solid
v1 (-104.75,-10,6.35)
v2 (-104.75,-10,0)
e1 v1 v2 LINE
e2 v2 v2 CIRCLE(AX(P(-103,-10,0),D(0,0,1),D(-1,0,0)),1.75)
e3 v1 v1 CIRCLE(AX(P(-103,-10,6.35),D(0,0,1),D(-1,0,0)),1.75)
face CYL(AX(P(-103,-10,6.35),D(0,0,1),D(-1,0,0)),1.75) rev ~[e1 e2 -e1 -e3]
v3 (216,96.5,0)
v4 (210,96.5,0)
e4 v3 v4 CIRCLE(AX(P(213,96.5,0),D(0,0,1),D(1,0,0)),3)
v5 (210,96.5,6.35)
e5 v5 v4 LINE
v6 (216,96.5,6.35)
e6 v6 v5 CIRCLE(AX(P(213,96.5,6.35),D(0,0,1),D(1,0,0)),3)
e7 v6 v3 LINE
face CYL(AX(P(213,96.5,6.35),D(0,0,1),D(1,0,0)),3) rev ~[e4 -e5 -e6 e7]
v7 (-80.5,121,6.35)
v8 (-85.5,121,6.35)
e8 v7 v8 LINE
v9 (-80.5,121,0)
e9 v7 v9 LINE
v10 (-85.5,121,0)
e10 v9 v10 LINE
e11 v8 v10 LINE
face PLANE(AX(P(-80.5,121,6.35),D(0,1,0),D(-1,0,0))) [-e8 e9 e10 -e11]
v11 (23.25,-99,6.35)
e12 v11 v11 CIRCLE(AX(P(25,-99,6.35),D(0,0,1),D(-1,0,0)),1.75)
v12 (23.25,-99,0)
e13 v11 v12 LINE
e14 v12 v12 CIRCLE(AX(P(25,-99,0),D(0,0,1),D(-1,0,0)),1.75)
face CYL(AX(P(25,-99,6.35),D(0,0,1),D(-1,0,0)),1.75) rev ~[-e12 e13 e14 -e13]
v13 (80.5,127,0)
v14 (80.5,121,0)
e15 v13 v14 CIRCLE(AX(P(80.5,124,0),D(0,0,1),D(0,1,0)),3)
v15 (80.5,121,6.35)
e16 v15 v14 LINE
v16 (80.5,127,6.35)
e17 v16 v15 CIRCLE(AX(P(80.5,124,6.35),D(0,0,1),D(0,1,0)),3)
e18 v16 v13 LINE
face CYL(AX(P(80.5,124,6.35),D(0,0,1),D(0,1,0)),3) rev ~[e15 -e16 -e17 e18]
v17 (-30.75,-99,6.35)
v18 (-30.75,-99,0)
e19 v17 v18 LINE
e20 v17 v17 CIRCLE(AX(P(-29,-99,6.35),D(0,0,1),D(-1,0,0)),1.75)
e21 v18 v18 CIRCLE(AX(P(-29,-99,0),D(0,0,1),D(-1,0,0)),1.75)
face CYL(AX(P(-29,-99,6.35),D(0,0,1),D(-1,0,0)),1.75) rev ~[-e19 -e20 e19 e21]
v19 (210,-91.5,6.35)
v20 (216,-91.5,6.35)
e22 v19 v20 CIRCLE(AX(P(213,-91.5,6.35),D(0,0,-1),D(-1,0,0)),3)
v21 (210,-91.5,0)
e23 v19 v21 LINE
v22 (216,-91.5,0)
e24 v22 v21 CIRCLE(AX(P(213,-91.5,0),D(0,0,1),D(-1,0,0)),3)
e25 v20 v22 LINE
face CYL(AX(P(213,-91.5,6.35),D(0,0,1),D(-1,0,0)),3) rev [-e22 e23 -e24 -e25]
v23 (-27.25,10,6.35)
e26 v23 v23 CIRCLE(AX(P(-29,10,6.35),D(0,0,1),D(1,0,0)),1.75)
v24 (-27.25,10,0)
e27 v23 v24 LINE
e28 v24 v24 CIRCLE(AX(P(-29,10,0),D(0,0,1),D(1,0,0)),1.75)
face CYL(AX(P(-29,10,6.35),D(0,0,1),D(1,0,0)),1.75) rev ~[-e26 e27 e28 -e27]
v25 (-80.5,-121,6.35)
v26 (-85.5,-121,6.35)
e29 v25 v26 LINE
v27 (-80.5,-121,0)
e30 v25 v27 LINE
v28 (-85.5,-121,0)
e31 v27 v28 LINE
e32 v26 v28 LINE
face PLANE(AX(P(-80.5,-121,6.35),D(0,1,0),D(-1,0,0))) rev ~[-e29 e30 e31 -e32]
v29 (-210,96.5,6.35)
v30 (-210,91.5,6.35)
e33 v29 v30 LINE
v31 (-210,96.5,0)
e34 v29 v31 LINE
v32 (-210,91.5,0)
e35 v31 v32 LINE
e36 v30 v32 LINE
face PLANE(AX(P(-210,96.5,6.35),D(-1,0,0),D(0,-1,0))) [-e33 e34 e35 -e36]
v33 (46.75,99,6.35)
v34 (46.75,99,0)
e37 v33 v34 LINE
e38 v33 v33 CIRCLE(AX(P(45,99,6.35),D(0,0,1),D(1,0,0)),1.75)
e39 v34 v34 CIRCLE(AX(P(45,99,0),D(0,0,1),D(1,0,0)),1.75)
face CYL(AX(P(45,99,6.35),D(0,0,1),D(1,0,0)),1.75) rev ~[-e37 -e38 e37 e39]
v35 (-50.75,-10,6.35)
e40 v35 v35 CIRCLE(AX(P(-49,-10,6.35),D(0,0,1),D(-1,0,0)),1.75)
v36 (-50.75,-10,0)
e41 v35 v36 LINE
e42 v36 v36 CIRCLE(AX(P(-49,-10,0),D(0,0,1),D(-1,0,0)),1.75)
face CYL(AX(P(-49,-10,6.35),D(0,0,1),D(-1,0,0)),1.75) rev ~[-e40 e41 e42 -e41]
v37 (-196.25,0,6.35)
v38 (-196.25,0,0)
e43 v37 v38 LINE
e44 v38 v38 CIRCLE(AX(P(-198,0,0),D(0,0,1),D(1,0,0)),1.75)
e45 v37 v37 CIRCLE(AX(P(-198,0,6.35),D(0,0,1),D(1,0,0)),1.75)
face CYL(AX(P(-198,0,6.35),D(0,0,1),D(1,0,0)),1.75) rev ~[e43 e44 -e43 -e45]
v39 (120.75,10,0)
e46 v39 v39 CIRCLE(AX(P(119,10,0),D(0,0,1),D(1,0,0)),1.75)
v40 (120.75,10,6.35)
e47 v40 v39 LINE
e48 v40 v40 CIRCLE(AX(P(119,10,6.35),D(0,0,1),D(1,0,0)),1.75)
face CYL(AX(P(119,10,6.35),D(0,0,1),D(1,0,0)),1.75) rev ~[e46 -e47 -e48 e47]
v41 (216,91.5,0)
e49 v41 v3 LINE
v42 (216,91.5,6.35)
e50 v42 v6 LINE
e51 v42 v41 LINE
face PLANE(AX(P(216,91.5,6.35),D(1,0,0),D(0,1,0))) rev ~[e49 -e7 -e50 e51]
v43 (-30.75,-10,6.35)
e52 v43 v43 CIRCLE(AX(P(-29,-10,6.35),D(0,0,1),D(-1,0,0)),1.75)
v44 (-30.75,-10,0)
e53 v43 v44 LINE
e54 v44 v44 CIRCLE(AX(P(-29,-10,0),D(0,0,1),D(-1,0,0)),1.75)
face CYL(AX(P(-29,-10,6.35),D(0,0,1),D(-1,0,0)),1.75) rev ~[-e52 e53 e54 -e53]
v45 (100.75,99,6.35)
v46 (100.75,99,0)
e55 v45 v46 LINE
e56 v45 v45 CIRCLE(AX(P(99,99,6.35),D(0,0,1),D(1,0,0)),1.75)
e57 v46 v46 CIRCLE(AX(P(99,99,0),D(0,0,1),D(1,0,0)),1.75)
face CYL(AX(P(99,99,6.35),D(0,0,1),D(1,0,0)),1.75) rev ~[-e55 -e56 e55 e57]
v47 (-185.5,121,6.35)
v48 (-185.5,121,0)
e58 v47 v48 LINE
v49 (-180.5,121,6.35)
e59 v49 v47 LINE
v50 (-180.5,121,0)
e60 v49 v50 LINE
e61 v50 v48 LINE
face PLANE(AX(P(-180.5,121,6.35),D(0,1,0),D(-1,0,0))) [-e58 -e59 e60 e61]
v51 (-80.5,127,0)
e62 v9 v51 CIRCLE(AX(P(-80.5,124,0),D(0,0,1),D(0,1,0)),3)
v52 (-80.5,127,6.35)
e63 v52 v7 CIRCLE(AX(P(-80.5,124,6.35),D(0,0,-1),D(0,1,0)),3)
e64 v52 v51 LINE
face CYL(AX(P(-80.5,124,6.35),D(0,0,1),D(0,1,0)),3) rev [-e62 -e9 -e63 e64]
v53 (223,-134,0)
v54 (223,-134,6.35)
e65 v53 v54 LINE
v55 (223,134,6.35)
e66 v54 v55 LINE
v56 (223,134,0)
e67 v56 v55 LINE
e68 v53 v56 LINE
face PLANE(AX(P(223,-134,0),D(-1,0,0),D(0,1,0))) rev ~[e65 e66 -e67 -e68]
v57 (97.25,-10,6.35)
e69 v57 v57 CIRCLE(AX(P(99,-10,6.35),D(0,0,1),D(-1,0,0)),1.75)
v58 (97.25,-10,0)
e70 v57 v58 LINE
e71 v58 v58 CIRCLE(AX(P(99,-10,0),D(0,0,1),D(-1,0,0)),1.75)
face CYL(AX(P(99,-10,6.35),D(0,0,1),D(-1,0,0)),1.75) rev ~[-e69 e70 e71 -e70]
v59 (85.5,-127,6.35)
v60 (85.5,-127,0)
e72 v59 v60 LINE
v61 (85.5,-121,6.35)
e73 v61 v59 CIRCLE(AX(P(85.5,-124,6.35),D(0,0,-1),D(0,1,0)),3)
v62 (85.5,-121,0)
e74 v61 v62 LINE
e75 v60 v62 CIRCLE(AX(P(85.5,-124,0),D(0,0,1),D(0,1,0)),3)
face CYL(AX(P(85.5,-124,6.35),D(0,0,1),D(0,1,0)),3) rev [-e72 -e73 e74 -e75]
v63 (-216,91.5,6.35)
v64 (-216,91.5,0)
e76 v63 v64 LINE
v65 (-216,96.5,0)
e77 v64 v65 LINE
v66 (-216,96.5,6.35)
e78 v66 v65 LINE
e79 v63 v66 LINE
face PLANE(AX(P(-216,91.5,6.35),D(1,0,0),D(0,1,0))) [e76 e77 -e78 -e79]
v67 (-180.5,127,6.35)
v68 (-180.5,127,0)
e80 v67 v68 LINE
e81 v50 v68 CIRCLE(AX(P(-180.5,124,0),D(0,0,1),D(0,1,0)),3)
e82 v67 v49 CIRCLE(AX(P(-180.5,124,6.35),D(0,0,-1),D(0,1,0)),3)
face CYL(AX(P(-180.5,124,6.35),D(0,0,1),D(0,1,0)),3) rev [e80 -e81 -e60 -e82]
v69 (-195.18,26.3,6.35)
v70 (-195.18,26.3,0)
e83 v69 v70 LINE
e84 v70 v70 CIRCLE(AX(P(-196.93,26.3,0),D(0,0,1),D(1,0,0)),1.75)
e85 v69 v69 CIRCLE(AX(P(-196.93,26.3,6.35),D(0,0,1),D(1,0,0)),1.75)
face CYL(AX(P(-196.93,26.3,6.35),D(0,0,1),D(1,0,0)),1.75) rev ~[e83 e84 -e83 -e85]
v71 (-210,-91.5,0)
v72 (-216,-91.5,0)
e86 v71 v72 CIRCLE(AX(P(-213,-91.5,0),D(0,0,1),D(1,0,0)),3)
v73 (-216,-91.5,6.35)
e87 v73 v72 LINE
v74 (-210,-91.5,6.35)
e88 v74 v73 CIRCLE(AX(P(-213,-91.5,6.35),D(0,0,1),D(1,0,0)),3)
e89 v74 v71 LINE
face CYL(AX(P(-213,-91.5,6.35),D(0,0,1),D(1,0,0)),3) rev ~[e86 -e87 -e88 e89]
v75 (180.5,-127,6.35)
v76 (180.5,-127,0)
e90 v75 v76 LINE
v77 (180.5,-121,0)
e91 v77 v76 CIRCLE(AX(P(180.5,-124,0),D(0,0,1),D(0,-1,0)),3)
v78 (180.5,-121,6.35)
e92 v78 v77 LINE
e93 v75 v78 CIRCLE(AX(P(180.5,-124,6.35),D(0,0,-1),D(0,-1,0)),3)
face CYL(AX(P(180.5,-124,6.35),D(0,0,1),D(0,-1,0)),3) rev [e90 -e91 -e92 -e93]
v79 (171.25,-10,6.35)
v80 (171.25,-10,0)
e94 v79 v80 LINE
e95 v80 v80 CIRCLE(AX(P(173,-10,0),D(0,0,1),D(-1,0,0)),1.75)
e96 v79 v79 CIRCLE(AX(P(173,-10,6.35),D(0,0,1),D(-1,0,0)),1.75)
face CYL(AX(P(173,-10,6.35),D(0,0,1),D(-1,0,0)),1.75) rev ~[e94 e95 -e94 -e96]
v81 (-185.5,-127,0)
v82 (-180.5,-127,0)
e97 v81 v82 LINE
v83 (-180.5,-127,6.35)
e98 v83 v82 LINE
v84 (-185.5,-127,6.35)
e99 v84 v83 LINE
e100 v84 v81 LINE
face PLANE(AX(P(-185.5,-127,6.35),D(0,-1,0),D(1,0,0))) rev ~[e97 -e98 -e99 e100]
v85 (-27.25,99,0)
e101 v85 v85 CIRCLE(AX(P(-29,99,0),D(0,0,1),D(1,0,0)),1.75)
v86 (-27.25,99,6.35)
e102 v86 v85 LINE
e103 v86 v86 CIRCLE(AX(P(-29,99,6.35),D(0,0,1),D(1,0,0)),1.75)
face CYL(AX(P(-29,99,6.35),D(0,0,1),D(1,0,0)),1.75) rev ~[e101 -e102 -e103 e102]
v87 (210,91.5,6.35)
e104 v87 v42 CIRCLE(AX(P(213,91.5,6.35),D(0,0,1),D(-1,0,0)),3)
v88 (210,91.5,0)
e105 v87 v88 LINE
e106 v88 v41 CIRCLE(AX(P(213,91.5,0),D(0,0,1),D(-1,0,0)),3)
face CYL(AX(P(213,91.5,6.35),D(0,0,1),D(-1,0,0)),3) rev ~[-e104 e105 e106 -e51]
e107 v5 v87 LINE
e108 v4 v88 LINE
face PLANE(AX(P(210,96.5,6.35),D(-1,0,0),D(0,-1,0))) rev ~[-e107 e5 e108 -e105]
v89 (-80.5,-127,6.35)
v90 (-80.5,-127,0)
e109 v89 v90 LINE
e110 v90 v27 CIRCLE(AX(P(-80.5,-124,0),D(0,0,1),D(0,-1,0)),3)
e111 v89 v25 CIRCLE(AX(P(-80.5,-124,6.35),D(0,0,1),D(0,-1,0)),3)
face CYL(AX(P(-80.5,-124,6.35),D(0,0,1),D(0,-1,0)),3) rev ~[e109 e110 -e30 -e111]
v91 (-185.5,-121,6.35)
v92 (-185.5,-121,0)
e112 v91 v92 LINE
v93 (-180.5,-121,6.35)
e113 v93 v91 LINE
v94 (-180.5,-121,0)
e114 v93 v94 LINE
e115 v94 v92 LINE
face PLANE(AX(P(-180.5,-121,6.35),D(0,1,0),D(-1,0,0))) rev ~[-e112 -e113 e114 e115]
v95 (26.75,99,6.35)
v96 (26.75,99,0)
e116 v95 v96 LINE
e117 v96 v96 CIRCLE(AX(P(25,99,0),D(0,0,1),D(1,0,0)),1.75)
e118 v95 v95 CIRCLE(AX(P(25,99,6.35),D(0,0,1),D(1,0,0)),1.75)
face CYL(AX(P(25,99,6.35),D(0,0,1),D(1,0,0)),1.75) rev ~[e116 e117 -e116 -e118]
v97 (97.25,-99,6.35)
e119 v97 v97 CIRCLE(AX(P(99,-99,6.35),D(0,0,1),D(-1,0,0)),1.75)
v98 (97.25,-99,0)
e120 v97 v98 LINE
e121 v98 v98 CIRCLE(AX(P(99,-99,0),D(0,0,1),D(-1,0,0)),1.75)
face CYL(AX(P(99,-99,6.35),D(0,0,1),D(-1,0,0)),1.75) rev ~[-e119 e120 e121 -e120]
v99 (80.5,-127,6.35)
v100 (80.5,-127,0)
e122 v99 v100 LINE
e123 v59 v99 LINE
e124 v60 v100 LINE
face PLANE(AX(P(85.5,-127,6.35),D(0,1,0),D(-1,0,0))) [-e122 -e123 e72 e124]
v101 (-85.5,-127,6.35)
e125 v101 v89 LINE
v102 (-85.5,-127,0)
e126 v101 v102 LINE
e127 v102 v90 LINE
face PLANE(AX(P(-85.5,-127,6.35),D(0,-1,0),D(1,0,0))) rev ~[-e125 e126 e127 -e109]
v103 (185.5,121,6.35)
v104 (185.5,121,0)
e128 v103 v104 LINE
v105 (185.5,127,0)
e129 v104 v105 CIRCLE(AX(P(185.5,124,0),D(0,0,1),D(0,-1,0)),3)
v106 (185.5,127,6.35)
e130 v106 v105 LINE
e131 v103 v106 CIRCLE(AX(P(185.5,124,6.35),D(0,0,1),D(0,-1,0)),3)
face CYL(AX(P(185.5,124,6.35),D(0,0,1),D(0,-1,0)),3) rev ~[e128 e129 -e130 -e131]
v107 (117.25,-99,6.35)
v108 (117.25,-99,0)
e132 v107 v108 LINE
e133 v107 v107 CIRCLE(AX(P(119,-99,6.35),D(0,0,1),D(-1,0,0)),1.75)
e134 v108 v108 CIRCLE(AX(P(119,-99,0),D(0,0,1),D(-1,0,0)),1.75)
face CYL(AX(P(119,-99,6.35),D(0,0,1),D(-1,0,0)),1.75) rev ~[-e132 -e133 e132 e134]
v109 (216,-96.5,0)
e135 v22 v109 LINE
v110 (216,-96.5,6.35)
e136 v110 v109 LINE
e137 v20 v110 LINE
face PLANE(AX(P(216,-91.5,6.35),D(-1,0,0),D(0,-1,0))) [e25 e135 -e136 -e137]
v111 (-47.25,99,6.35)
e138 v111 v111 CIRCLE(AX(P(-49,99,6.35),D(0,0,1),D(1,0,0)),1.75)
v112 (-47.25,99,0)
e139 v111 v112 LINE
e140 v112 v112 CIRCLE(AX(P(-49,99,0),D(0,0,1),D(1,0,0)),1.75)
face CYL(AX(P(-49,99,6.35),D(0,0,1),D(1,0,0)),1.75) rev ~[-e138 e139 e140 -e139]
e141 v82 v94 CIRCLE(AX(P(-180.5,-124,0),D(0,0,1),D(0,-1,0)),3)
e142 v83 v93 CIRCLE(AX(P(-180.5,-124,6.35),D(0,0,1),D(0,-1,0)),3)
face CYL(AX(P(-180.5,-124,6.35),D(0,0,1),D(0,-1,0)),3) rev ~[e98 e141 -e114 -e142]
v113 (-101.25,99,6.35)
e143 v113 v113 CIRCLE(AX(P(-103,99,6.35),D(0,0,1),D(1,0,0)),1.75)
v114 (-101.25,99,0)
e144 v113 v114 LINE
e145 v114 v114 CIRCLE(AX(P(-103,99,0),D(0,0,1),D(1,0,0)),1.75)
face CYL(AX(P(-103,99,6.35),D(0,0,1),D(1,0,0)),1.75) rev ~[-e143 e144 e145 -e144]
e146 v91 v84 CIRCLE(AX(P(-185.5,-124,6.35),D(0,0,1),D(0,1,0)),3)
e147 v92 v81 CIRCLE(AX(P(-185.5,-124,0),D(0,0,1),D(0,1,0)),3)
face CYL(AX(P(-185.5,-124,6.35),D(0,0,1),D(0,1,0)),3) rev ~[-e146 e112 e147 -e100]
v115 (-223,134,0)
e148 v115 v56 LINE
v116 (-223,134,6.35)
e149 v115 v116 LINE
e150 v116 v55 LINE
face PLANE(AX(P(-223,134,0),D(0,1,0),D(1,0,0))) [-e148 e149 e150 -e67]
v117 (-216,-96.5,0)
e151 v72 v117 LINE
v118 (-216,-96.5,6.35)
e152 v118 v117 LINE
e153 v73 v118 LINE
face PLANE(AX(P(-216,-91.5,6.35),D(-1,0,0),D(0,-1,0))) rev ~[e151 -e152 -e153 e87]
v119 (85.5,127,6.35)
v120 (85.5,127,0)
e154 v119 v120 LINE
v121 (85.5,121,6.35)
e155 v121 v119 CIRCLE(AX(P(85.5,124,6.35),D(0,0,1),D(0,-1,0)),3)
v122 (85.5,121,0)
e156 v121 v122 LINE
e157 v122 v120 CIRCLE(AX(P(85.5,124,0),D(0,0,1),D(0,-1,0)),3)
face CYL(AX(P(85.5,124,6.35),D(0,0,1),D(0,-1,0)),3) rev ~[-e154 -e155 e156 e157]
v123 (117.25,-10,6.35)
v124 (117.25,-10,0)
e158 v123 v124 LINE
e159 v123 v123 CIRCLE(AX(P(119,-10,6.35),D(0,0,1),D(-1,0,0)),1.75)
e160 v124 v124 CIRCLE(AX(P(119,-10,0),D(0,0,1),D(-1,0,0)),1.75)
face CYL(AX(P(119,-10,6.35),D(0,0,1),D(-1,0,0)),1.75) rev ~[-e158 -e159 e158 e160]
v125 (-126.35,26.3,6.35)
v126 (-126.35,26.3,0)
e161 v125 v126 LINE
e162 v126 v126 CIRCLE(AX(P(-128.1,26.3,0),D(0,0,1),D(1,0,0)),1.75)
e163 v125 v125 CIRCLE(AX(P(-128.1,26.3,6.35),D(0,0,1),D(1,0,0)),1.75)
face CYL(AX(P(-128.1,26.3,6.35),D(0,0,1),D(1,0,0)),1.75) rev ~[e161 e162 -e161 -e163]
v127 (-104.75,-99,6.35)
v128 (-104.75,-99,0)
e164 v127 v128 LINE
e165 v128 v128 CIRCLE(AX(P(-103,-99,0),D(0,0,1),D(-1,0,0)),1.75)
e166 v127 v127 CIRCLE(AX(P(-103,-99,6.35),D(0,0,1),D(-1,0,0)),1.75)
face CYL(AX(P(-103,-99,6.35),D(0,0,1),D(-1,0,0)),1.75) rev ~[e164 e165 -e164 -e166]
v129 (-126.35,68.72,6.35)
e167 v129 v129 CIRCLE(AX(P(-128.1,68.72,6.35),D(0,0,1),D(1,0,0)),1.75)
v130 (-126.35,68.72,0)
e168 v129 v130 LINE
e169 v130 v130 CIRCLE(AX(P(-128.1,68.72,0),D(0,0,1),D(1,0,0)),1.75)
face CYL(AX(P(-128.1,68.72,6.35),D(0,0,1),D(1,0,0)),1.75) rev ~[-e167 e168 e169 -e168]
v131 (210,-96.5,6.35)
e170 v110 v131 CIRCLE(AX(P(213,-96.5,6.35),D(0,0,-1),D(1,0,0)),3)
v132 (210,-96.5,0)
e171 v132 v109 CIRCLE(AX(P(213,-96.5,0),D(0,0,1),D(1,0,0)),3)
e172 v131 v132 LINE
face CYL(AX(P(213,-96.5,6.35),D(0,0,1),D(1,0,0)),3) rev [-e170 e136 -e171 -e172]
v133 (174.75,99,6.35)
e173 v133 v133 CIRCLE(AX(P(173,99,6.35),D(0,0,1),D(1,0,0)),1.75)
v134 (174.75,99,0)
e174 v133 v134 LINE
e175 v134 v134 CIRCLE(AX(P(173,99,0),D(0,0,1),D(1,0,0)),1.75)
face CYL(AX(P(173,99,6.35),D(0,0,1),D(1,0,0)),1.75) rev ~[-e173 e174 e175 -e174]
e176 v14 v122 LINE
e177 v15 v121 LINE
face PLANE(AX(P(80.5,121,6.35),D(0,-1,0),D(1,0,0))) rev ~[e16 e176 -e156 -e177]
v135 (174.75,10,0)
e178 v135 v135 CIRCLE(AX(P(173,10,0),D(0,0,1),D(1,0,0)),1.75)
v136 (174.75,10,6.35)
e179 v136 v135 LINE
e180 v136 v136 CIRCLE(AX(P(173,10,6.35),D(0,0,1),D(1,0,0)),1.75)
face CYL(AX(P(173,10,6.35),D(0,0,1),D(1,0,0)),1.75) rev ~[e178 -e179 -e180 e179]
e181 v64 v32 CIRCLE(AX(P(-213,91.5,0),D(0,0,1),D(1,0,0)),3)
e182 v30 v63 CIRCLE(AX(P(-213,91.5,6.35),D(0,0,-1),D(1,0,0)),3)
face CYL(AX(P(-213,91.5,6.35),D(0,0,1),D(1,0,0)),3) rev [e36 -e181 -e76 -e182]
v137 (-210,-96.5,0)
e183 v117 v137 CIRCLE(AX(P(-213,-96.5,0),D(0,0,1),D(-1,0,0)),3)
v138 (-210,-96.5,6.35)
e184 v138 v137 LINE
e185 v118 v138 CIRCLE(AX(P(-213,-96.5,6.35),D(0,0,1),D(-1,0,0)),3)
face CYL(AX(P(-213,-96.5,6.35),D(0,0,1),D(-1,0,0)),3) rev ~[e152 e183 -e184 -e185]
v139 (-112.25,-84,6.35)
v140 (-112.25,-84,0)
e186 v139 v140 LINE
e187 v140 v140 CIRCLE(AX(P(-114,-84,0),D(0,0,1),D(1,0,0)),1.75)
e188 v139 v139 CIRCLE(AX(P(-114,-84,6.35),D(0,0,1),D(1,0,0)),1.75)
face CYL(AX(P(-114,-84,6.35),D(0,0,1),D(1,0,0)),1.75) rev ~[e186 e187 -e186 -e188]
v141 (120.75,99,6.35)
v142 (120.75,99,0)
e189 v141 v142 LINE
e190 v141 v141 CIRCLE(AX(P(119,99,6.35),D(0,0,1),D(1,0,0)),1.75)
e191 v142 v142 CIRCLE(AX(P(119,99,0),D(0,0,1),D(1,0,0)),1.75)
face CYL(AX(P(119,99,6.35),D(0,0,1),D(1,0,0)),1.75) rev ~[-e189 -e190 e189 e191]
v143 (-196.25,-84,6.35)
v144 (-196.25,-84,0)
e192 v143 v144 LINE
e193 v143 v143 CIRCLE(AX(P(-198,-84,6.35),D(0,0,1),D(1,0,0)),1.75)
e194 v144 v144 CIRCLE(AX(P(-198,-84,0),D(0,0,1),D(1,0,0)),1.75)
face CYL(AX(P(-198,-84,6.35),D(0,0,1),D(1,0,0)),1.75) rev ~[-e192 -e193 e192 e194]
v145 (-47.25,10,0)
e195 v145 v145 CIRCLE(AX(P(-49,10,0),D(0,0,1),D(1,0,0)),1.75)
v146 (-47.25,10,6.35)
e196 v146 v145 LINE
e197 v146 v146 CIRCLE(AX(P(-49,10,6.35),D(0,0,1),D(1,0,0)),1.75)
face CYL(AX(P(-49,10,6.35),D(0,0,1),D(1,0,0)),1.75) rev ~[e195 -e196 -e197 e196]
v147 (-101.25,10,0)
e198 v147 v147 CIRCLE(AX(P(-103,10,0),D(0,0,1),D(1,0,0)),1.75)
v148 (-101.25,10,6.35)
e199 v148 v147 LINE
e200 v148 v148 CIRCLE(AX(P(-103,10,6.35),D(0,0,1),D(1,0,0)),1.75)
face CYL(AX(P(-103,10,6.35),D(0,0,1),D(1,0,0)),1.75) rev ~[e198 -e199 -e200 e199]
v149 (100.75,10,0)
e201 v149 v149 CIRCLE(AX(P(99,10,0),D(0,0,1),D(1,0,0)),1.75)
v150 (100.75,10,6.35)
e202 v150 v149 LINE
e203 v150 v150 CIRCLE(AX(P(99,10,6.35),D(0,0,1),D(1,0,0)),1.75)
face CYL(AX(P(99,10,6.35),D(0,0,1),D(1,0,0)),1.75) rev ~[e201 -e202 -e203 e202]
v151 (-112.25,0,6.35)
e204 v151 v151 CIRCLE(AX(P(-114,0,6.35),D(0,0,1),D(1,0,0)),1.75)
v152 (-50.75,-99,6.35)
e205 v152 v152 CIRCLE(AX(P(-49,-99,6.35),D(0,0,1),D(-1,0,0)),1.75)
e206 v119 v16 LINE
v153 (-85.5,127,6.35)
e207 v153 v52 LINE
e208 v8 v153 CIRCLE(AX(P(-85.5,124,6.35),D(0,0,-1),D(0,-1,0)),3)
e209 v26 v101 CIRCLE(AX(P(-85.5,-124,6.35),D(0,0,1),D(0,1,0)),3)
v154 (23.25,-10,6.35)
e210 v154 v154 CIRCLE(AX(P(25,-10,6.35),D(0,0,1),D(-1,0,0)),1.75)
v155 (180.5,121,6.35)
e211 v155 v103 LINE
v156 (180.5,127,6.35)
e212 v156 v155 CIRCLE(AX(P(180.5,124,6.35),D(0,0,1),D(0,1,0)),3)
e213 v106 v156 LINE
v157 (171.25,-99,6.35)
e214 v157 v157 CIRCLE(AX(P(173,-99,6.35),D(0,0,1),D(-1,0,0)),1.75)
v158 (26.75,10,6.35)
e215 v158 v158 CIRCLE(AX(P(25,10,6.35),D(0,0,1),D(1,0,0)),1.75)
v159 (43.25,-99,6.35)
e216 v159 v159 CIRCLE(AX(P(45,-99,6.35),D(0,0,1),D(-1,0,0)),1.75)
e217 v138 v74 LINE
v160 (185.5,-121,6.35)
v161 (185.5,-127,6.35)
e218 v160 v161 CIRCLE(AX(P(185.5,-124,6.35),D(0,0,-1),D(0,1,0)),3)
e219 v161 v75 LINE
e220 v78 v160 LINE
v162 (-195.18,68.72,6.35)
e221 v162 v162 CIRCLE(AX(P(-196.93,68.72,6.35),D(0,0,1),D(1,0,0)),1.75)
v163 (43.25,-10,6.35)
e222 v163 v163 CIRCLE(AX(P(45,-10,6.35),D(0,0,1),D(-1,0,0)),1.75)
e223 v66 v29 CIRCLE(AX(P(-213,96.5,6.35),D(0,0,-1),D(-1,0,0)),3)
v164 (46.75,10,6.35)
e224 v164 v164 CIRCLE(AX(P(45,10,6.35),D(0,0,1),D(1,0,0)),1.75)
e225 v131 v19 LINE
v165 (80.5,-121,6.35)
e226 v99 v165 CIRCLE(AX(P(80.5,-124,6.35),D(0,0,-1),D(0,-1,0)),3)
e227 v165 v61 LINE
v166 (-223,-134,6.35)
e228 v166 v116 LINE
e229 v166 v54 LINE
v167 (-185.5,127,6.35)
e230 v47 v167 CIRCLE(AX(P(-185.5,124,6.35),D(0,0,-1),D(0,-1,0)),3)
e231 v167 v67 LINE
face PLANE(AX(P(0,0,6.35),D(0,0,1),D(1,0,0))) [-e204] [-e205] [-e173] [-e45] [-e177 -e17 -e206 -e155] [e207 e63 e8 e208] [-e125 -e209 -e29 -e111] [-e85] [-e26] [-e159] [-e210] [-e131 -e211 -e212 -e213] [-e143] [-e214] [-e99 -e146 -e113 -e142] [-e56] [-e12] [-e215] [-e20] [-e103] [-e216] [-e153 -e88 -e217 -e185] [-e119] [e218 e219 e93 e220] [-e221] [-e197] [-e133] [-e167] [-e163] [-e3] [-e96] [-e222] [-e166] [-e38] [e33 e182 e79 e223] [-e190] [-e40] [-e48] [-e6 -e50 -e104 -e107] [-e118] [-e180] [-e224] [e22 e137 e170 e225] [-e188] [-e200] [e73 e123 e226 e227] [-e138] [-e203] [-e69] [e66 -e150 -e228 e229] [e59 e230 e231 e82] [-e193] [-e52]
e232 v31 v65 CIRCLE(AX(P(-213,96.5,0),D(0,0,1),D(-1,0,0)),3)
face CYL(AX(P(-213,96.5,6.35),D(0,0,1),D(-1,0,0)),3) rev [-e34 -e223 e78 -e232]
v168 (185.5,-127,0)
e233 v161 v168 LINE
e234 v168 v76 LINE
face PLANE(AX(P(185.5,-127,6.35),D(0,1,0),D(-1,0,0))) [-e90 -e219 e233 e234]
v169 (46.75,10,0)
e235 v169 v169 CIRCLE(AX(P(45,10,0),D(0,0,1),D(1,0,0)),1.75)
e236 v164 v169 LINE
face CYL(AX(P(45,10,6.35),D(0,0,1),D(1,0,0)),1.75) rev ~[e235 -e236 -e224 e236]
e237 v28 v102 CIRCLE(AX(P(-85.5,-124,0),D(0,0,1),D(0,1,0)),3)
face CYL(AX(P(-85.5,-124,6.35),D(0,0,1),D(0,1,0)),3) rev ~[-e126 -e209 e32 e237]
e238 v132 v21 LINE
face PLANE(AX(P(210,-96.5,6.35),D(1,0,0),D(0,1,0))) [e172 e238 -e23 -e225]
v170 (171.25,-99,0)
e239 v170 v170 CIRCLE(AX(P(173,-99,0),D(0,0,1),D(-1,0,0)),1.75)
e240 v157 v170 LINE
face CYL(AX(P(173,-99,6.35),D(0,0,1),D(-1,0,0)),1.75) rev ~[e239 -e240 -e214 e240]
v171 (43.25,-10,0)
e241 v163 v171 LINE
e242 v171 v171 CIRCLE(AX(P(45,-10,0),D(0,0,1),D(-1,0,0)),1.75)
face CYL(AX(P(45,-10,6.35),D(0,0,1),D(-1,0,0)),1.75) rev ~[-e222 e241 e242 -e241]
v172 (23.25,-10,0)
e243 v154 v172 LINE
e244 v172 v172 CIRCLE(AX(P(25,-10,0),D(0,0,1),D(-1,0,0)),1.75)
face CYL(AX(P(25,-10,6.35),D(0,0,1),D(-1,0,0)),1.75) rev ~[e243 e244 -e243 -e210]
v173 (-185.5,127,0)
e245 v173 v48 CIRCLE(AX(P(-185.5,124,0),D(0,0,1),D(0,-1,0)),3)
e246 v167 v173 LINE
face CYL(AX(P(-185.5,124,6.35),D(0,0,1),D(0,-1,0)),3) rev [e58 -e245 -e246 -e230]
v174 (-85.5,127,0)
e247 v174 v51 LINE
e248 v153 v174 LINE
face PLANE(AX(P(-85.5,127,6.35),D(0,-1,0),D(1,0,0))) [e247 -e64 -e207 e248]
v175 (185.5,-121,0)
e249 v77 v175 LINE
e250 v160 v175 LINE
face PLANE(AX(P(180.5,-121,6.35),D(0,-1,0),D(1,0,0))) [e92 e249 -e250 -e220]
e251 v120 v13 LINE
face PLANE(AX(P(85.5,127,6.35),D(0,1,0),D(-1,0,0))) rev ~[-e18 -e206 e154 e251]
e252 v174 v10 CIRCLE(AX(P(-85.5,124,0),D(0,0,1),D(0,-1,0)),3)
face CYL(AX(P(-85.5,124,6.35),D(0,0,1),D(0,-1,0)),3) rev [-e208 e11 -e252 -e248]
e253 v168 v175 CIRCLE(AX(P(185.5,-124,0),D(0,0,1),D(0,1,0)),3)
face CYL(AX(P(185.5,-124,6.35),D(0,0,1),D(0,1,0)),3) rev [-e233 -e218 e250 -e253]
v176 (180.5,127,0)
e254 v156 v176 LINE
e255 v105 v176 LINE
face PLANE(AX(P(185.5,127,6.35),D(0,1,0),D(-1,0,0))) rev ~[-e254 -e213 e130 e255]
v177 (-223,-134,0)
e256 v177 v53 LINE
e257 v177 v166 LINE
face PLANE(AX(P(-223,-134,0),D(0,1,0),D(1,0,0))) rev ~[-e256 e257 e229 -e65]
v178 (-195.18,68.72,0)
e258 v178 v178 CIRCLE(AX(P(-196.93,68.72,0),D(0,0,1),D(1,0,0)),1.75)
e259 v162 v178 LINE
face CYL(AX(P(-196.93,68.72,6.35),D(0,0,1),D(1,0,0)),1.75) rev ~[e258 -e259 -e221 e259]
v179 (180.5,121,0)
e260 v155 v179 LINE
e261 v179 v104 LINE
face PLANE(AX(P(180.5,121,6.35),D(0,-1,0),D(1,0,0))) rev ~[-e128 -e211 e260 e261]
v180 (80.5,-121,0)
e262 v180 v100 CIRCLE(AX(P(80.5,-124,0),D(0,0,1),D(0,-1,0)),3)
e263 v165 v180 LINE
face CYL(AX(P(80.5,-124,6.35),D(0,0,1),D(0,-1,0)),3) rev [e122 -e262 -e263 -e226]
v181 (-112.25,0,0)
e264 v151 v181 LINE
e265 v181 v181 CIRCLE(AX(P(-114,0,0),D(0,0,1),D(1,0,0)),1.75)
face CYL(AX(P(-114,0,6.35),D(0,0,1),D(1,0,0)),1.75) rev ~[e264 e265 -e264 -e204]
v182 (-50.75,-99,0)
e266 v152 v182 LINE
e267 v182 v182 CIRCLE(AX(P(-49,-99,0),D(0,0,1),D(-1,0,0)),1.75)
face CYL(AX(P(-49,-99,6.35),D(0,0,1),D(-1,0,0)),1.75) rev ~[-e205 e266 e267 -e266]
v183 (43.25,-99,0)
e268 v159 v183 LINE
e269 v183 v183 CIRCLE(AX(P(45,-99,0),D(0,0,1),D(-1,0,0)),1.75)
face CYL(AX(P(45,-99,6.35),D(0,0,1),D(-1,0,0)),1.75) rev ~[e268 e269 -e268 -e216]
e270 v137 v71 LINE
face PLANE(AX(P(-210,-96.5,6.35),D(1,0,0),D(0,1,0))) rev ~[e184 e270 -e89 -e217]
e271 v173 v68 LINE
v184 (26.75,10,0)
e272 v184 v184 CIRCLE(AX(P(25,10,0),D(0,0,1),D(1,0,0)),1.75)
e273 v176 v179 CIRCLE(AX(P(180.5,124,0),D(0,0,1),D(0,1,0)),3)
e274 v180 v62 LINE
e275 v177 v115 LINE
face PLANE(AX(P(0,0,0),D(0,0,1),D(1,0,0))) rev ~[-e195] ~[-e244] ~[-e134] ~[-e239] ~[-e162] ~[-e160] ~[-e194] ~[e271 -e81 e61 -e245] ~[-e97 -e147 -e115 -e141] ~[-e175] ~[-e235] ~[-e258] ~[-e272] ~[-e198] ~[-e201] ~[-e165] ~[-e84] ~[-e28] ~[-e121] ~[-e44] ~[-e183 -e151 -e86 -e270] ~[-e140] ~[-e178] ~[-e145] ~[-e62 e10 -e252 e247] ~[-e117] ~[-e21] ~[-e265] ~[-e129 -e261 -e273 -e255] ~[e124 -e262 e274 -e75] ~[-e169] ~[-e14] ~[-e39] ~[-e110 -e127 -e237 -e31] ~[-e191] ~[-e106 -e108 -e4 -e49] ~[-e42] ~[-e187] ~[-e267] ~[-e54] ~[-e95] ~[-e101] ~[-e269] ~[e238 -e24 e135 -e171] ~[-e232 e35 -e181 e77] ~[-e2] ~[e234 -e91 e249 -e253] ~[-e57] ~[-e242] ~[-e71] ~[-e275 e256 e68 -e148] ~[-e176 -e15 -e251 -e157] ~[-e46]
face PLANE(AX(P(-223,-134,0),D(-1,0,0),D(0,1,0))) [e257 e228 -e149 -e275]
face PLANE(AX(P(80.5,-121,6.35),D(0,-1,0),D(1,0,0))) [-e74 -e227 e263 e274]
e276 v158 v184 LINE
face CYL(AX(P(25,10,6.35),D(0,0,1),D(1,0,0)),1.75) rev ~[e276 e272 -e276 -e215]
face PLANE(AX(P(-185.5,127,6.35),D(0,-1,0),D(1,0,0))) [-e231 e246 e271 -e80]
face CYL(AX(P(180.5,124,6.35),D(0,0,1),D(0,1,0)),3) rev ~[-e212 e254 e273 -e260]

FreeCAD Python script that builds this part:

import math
import FreeCAD as App
import Part
import Sketcher
from FreeCAD import Vector
Q = App.Units.Quantity


def add_polygon(sketch, points):
    """Adds a closed chain of lines whose ends are joined by coincident constraints."""
    first, n = sketch.GeometryCount, len(points)
    for a, b in zip(points, points[1:] + points[:1]):
        sketch.addGeometry(Part.LineSegment(App.Vector(*a, 0), App.Vector(*b, 0)), False)
    for i in range(n):
        sketch.addConstraint(Sketcher.Constraint("Coincident", first + i, 2, first + (i + 1) % n, 1))

doc = App.newDocument("Part")
params = doc.addObject("Spreadsheet::Sheet", "Params")
for row, (alias, value) in enumerate([
    ("sketch1_width", "446 mm"),
    ("sketch1_height", "268 mm"),
    ("pad1_length", "6.35 mm"),
    ("sketch2_radius", "3 mm"),
    ("sketch2_diameter", "3.5 mm"),
    ("sketch2_width", "5 mm"),
], start=1):
    params.set(f"A{row}", alias)
    params.set(f"B{row}", "=" + value)
    params.setAlias(f"B{row}", alias)

body = doc.addObject("PartDesign::Body", "Body")

# Sketch on XY plane
sketch1 = doc.addObject("Sketcher::SketchObject", "Sketch")
body.addObject(sketch1)
sketch1.AttachmentSupport = (doc.XY_Plane, [""])
sketch1.MapMode = "FlatFace"
add_polygon(sketch1, [(-223, 134), (-223, -134), (223, -134), (223, 134)])  # lines 0-3
sketch1.addConstraint([
    Sketcher.Constraint("Vertical", 0),
    Sketcher.Constraint("Horizontal", 1),
    Sketcher.Constraint("Vertical", 2),
    Sketcher.Constraint("Horizontal", 3),
    Sketcher.Constraint("Symmetric", 0, 2, 2, 2, -1, 1),
    Sketcher.Constraint("DistanceX", 1, 1, 1, 2, Q("446 mm")),
    Sketcher.Constraint("DistanceY", 0, 2, 0, 1, Q("268 mm")),
])
sketch1.setExpression("Constraints[9]", "Params.sketch1_width")
sketch1.setExpression("Constraints[10]", "Params.sketch1_height")
pad1 = doc.addObject("PartDesign::Pad", "Pad")
body.addObject(pad1)
pad1.Profile = sketch1
pad1.setExpression("Length", "Params.pad1_length")

# Sketch on XY plane
sketch2 = doc.addObject("Sketcher::SketchObject", "Sketch001")
body.addObject(sketch2)
sketch2.AttachmentSupport = (doc.XY_Plane, [""])
sketch2.MapMode = "FlatFace"
sketch2.AttachmentOffset = App.Placement(Vector(0, 0, 6.35), App.Rotation())
sketch2.addGeometry([
    Part.Circle(Vector(119, 10, 0), Vector(0, 0, 1), 1.8),  # 0
    Part.Circle(Vector(173, 10, 0), Vector(0, 0, 1), 1.8),  # 1
    Part.Circle(Vector(119, 99, 0), Vector(0, 0, 1), 1.8),  # 2
    Part.Circle(Vector(173, 99, 0), Vector(0, 0, 1), 1.8),  # 3
    Part.Circle(Vector(99, 99, 0), Vector(0, 0, 1), 1.8),  # 4
    Part.Circle(Vector(99, 10, 0), Vector(0, 0, 1), 1.8),  # 5
    Part.Circle(Vector(45, 10, 0), Vector(0, 0, 1), 1.8),  # 6
    Part.Circle(Vector(45, 99, 0), Vector(0, 0, 1), 1.8),  # 7
    Part.Circle(Vector(25, 99, 0), Vector(0, 0, 1), 1.8),  # 8
    Part.Circle(Vector(25, 10, 0), Vector(0, 0, 1), 1.8),  # 9
    Part.Circle(Vector(-29, 10, 0), Vector(0, 0, 1), 1.8),  # 10
    Part.Circle(Vector(-29, 99, 0), Vector(0, 0, 1), 1.8),  # 11
    Part.Circle(Vector(-49, 99, 0), Vector(0, 0, 1), 1.8),  # 12
    Part.Circle(Vector(-49, 10, 0), Vector(0, 0, 1), 1.8),  # 13
    Part.Circle(Vector(-103, 10, 0), Vector(0, 0, 1), 1.8),  # 14
    Part.Circle(Vector(-103, 99, 0), Vector(0, 0, 1), 1.8),  # 15
    Part.Circle(Vector(-103, -99, 0), Vector(0, 0, 1), 1.8),  # 16
    Part.Circle(Vector(-103, -10, 0), Vector(0, 0, 1), 1.8),  # 17
    Part.Circle(Vector(-49, -10, 0), Vector(0, 0, 1), 1.8),  # 18
    Part.Circle(Vector(-49, -99, 0), Vector(0, 0, 1), 1.8),  # 19
    Part.Circle(Vector(-29, -99, 0), Vector(0, 0, 1), 1.8),  # 20
    Part.Circle(Vector(-29, -10, 0), Vector(0, 0, 1), 1.8),  # 21
    Part.Circle(Vector(25, -10, 0), Vector(0, 0, 1), 1.8),  # 22
    Part.Circle(Vector(25, -99, 0), Vector(0, 0, 1), 1.8),  # 23
    Part.Circle(Vector(45, -99, 0), Vector(0, 0, 1), 1.8),  # 24
    Part.Circle(Vector(45, -10, 0), Vector(0, 0, 1), 1.8),  # 25
    Part.Circle(Vector(99, -10, 0), Vector(0, 0, 1), 1.8),  # 26
    Part.Circle(Vector(99, -99, 0), Vector(0, 0, 1), 1.8),  # 27
    Part.Circle(Vector(173, -99, 0), Vector(0, 0, 1), 1.8),  # 28
    Part.Circle(Vector(119, -99, 0), Vector(0, 0, 1), 1.8),  # 29
    Part.Circle(Vector(173, -10, 0), Vector(0, 0, 1), 1.8),  # 30
    Part.Circle(Vector(119, -10, 0), Vector(0, 0, 1), 1.8),  # 31
    Part.Circle(Vector(-198, 0, 0), Vector(0, 0, 1), 1.8),  # 32
    Part.Circle(Vector(-114, 0, 0), Vector(0, 0, 1), 1.8),  # 33
    Part.Circle(Vector(-198, -84, 0), Vector(0, 0, 1), 1.8),  # 34
    Part.Circle(Vector(-114, -84, 0), Vector(0, 0, 1), 1.8),  # 35
    Part.Circle(Vector(-196.9, 26.3, 0), Vector(0, 0, 1), 1.8),  # 36
    Part.Circle(Vector(-128.1, 26.3, 0), Vector(0, 0, 1), 1.8),  # 37
    Part.Circle(Vector(-128.1, 68.7, 0), Vector(0, 0, 1), 1.8),  # 38
    Part.Circle(Vector(-196.9, 68.7, 0), Vector(0, 0, 1), 1.8),  # 39
    Part.LineSegment(Vector(-180.5, 127, 0), Vector(-185.5, 127, 0)),  # 40
    Part.ArcOfCircle(Part.Circle(Vector(-185.5, 124, 0), Vector(0, 0, 1), 3), math.radians(90), math.radians(270)),  # 41
    Part.LineSegment(Vector(-185.5, 121, 0), Vector(-180.5, 121, 0)),  # 42
    Part.ArcOfCircle(Part.Circle(Vector(-180.5, 124, 0), Vector(0, 0, 1), 3), math.radians(-90), math.radians(90)),  # 43
    Part.LineSegment(Vector(-210, 91.5, 0), Vector(-210, 96.5, 0)),  # 44
    Part.ArcOfCircle(Part.Circle(Vector(-213, 96.5, 0), Vector(0, 0, 1), 3), math.radians(0), math.radians(180)),  # 45
    Part.LineSegment(Vector(-216, 96.5, 0), Vector(-216, 91.5, 0)),  # 46
    Part.ArcOfCircle(Part.Circle(Vector(-213, 91.5, 0), Vector(0, 0, 1), 3), math.radians(180), math.radians(360)),  # 47
    Part.LineSegment(Vector(-80.5, 127, 0), Vector(-85.5, 127, 0)),  # 48
    Part.ArcOfCircle(Part.Circle(Vector(-85.5, 124, 0), Vector(0, 0, 1), 3), math.radians(90), math.radians(270)),  # 49
    Part.LineSegment(Vector(-85.5, 121, 0), Vector(-80.5, 121, 0)),  # 50
    Part.ArcOfCircle(Part.Circle(Vector(-80.5, 124, 0), Vector(0, 0, 1), 3), math.radians(-90), math.radians(90)),  # 51
    Part.LineSegment(Vector(85.5, 127, 0), Vector(80.5, 127, 0)),  # 52
    Part.ArcOfCircle(Part.Circle(Vector(80.5, 124, 0), Vector(0, 0, 1), 3), math.radians(90), math.radians(270)),  # 53
    Part.LineSegment(Vector(80.5, 121, 0), Vector(85.5, 121, 0)),  # 54
    Part.ArcOfCircle(Part.Circle(Vector(85.5, 124, 0), Vector(0, 0, 1), 3), math.radians(-90), math.radians(90)),  # 55
    Part.LineSegment(Vector(185.5, 127, 0), Vector(180.5, 127, 0)),  # 56
    Part.ArcOfCircle(Part.Circle(Vector(180.5, 124, 0), Vector(0, 0, 1), 3), math.radians(90), math.radians(270)),  # 57
    Part.LineSegment(Vector(180.5, 121, 0), Vector(185.5, 121, 0)),  # 58
    Part.ArcOfCircle(Part.Circle(Vector(185.5, 124, 0), Vector(0, 0, 1), 3), math.radians(-90), math.radians(90)),  # 59
    Part.LineSegment(Vector(210, 96.5, 0), Vector(210, 91.5, 0)),  # 60
    Part.ArcOfCircle(Part.Circle(Vector(213, 91.5, 0), Vector(0, 0, 1), 3), math.radians(180), math.radians(360)),  # 61
    Part.LineSegment(Vector(216, 91.5, 0), Vector(216, 96.5, 0)),  # 62
    Part.ArcOfCircle(Part.Circle(Vector(213, 96.5, 0), Vector(0, 0, 1), 3), math.radians(0), math.radians(180)),  # 63
    Part.LineSegment(Vector(210, -91.5, 0), Vector(210, -96.5, 0)),  # 64
    Part.ArcOfCircle(Part.Circle(Vector(213, -96.5, 0), Vector(0, 0, 1), 3), math.radians(180), math.radians(360)),  # 65
    Part.LineSegment(Vector(216, -96.5, 0), Vector(216, -91.5, 0)),  # 66
    Part.ArcOfCircle(Part.Circle(Vector(213, -91.5, 0), Vector(0, 0, 1), 3), math.radians(0), math.radians(180)),  # 67
    Part.LineSegment(Vector(180.5, -127, 0), Vector(185.5, -127, 0)),  # 68
    Part.ArcOfCircle(Part.Circle(Vector(185.5, -124, 0), Vector(0, 0, 1), 3), math.radians(-90), math.radians(90)),  # 69
    Part.LineSegment(Vector(185.5, -121, 0), Vector(180.5, -121, 0)),  # 70
    Part.ArcOfCircle(Part.Circle(Vector(180.5, -124, 0), Vector(0, 0, 1), 3), math.radians(90), math.radians(270)),  # 71
    Part.LineSegment(Vector(80.5, -127, 0), Vector(85.5, -127, 0)),  # 72
    Part.ArcOfCircle(Part.Circle(Vector(85.5, -124, 0), Vector(0, 0, 1), 3), math.radians(-90), math.radians(90)),  # 73
    Part.LineSegment(Vector(85.5, -121, 0), Vector(80.5, -121, 0)),  # 74
    Part.ArcOfCircle(Part.Circle(Vector(80.5, -124, 0), Vector(0, 0, 1), 3), math.radians(90), math.radians(270)),  # 75
    Part.LineSegment(Vector(-85.5, -127, 0), Vector(-80.5, -127, 0)),  # 76
    Part.ArcOfCircle(Part.Circle(Vector(-80.5, -124, 0), Vector(0, 0, 1), 3), math.radians(-90), math.radians(90)),  # 77
    Part.LineSegment(Vector(-80.5, -121, 0), Vector(-85.5, -121, 0)),  # 78
    Part.ArcOfCircle(Part.Circle(Vector(-85.5, -124, 0), Vector(0, 0, 1), 3), math.radians(90), math.radians(270)),  # 79
    Part.LineSegment(Vector(-185.5, -127, 0), Vector(-180.5, -127, 0)),  # 80
    Part.ArcOfCircle(Part.Circle(Vector(-180.5, -124, 0), Vector(0, 0, 1), 3), math.radians(-90), math.radians(90)),  # 81
    Part.LineSegment(Vector(-180.5, -121, 0), Vector(-185.5, -121, 0)),  # 82
    Part.ArcOfCircle(Part.Circle(Vector(-185.5, -124, 0), Vector(0, 0, 1), 3), math.radians(90), math.radians(270)),  # 83
    Part.LineSegment(Vector(-210, -96.5, 0), Vector(-210, -91.5, 0)),  # 84
    Part.ArcOfCircle(Part.Circle(Vector(-213, -91.5, 0), Vector(0, 0, 1), 3), math.radians(0), math.radians(180)),  # 85
    Part.LineSegment(Vector(-216, -91.5, 0), Vector(-216, -96.5, 0)),  # 86
    Part.ArcOfCircle(Part.Circle(Vector(-213, -96.5, 0), Vector(0, 0, 1), 3), math.radians(180), math.radians(360)),  # 87
], False)
sketch2.addConstraint([
    Sketcher.Constraint("Tangent", 40, 2, 41, 1),
    Sketcher.Constraint("Tangent", 41, 2, 42, 1),
    Sketcher.Constraint("Tangent", 42, 2, 43, 1),
    Sketcher.Constraint("Tangent", 43, 2, 40, 1),
    Sketcher.Constraint("Tangent", 44, 2, 45, 1),
    Sketcher.Constraint("Tangent", 45, 2, 46, 1),
    Sketcher.Constraint("Tangent", 46, 2, 47, 1),
    Sketcher.Constraint("Tangent", 47, 2, 44, 1),
    Sketcher.Constraint("Tangent", 48, 2, 49, 1),
    Sketcher.Constraint("Tangent", 49, 2, 50, 1),
    Sketcher.Constraint("Tangent", 50, 2, 51, 1),
    Sketcher.Constraint("Tangent", 51, 2, 48, 1),
    Sketcher.Constraint("Tangent", 52, 2, 53, 1),
    Sketcher.Constraint("Tangent", 53, 2, 54, 1),
    Sketcher.Constraint("Tangent", 54, 2, 55, 1),
    Sketcher.Constraint("Tangent", 55, 2, 52, 1),
    Sketcher.Constraint("Tangent", 56, 2, 57, 1),
    Sketcher.Constraint("Tangent", 57, 2, 58, 1),
    Sketcher.Constraint("Tangent", 58, 2, 59, 1),
    Sketcher.Constraint("Tangent", 59, 2, 56, 1),
    Sketcher.Constraint("Tangent", 60, 2, 61, 1),
    Sketcher.Constraint("Tangent", 61, 2, 62, 1),
    Sketcher.Constraint("Tangent", 62, 2, 63, 1),
    Sketcher.Constraint("Tangent", 63, 2, 60, 1),
    Sketcher.Constraint("Tangent", 64, 2, 65, 1),
    Sketcher.Constraint("Tangent", 65, 2, 66, 1),
    Sketcher.Constraint("Tangent", 66, 2, 67, 1),
    Sketcher.Constraint("Tangent", 67, 2, 64, 1),
    Sketcher.Constraint("Tangent", 68, 2, 69, 1),
    Sketcher.Constraint("Tangent", 69, 2, 70, 1),
    Sketcher.Constraint("Tangent", 70, 2, 71, 1),
    Sketcher.Constraint("Tangent", 71, 2, 68, 1),
    Sketcher.Constraint("Tangent", 72, 2, 73, 1),
    Sketcher.Constraint("Tangent", 73, 2, 74, 1),
    Sketcher.Constraint("Tangent", 74, 2, 75, 1),
    Sketcher.Constraint("Tangent", 75, 2, 72, 1),
    Sketcher.Constraint("Tangent", 76, 2, 77, 1),
    Sketcher.Constraint("Tangent", 77, 2, 78, 1),
    Sketcher.Constraint("Tangent", 78, 2, 79, 1),
    Sketcher.Constraint("Tangent", 79, 2, 76, 1),
    Sketcher.Constraint("Tangent", 80, 2, 81, 1),
    Sketcher.Constraint("Tangent", 81, 2, 82, 1),
    Sketcher.Constraint("Tangent", 82, 2, 83, 1),
    Sketcher.Constraint("Tangent", 83, 2, 80, 1),
    Sketcher.Constraint("Tangent", 84, 2, 85, 1),
    Sketcher.Constraint("Tangent", 85, 2, 86, 1),
    Sketcher.Constraint("Tangent", 86, 2, 87, 1),
    Sketcher.Constraint("Tangent", 87, 2, 84, 1),
    Sketcher.Constraint("Horizontal", 40),
    Sketcher.Constraint("Horizontal", 42),
    Sketcher.Constraint("Vertical", 44),
    Sketcher.Constraint("Vertical", 46),
    Sketcher.Constraint("Horizontal", 48),
    Sketcher.Constraint("Horizontal", 50),
    Sketcher.Constraint("Horizontal", 52),
    Sketcher.Constraint("Horizontal", 54),
    Sketcher.Constraint("Horizontal", 56),
    Sketcher.Constraint("Horizontal", 58),
    Sketcher.Constraint("Vertical", 60),
    Sketcher.Constraint("Vertical", 62),
    Sketcher.Constraint("Vertical", 64),
    Sketcher.Constraint("Vertical", 66),
    Sketcher.Constraint("Horizontal", 68),
    Sketcher.Constraint("Horizontal", 70),
    Sketcher.Constraint("Horizontal", 72),
    Sketcher.Constraint("Horizontal", 74),
    Sketcher.Constraint("Horizontal", 76),
    Sketcher.Constraint("Horizontal", 78),
    Sketcher.Constraint("Horizontal", 80),
    Sketcher.Constraint("Horizontal", 82),
    Sketcher.Constraint("Vertical", 84),
    Sketcher.Constraint("Vertical", 86),
    Sketcher.Constraint("Equal", 0, 1),
    Sketcher.Constraint("Equal", 1, 2),
    Sketcher.Constraint("Equal", 2, 3),
    Sketcher.Constraint("Equal", 3, 4),
    Sketcher.Constraint("Equal", 4, 5),
    Sketcher.Constraint("Equal", 5, 6),
    Sketcher.Constraint("Equal", 6, 7),
    Sketcher.Constraint("Equal", 7, 8),
    Sketcher.Constraint("Equal", 8, 9),
    Sketcher.Constraint("Equal", 9, 10),
    Sketcher.Constraint("Equal", 10, 11),
    Sketcher.Constraint("Equal", 11, 12),
    Sketcher.Constraint("Equal", 12, 13),
    Sketcher.Constraint("Equal", 13, 14),
    Sketcher.Constraint("Equal", 14, 15),
    Sketcher.Constraint("Equal", 15, 16),
    Sketcher.Constraint("Equal", 16, 17),
    Sketcher.Constraint("Equal", 17, 18),
    Sketcher.Constraint("Equal", 18, 19),
    Sketcher.Constraint("Equal", 19, 20),
    Sketcher.Constraint("Equal", 20, 21),
    Sketcher.Constraint("Equal", 21, 22),
    Sketcher.Constraint("Equal", 22, 23),
    Sketcher.Constraint("Equal", 23, 24),
    Sketcher.Constraint("Equal", 24, 25),
    Sketcher.Constraint("Equal", 25, 26),
    Sketcher.Constraint("Equal", 26, 27),
    Sketcher.Constraint("Equal", 27, 28),
    Sketcher.Constraint("Equal", 28, 29),
    Sketcher.Constraint("Equal", 29, 30),
    Sketcher.Constraint("Equal", 30, 31),
    Sketcher.Constraint("Equal", 31, 32),
    Sketcher.Constraint("Equal", 32, 33),
    Sketcher.Constraint("Equal", 33, 34),
    Sketcher.Constraint("Equal", 34, 35),
    Sketcher.Constraint("Equal", 35, 36),
    Sketcher.Constraint("Equal", 36, 37),
    Sketcher.Constraint("Equal", 37, 38),
    Sketcher.Constraint("Equal", 38, 39),
    Sketcher.Constraint("Equal", 43, 45),
    Sketcher.Constraint("Equal", 47, 49),
    Sketcher.Constraint("Equal", 51, 53),
    Sketcher.Constraint("Equal", 55, 57),
    Sketcher.Constraint("Equal", 59, 61),
    Sketcher.Constraint("Equal", 63, 65),
    Sketcher.Constraint("Equal", 67, 69),
    Sketcher.Constraint("Equal", 71, 73),
    Sketcher.Constraint("Equal", 75, 77),
    Sketcher.Constraint("Equal", 79, 81),
    Sketcher.Constraint("Equal", 83, 85),
    Sketcher.Constraint("Symmetric", 45, 3, 65, 3, -1, 1),
    Sketcher.Constraint("Symmetric", 41, 3, 69, 3, -1, 1),
    Sketcher.Constraint("Symmetric", 49, 3, 73, 3, -1, 1),
    Sketcher.Constraint("Symmetric", 53, 3, 77, 3, -1, 1),
    Sketcher.Constraint("Symmetric", 57, 3, 81, 3, -1, 1),
    Sketcher.Constraint("Symmetric", 61, 3, 85, 3, -1, 1),
    Sketcher.Constraint("Symmetric", 51, 3, 53, 3, -2),
    Sketcher.Constraint("Symmetric", 43, 3, 57, 3, -2),
    Sketcher.Constraint("Symmetric", 47, 3, 61, 3, -2),
    Sketcher.Constraint("Symmetric", 15, 3, 16, 3, -1),
    Sketcher.Constraint("Symmetric", 14, 3, 17, 3, -1),
    Sketcher.Constraint("Symmetric", 13, 3, 18, 3, -1),
    Sketcher.Constraint("Symmetric", 12, 3, 19, 3, -1),
    Sketcher.Constraint("Symmetric", 11, 3, 20, 3, -1),
    Sketcher.Constraint("Symmetric", 10, 3, 21, 3, -1),
    Sketcher.Constraint("Symmetric", 9, 3, 22, 3, -1),
    Sketcher.Constraint("Symmetric", 8, 3, 23, 3, -1),
    Sketcher.Constraint("Symmetric", 7, 3, 24, 3, -1),
    Sketcher.Constraint("Symmetric", 6, 3, 25, 3, -1),
    Sketcher.Constraint("Symmetric", 5, 3, 26, 3, -1),
    Sketcher.Constraint("Symmetric", 4, 3, 27, 3, -1),
    Sketcher.Constraint("Symmetric", 3, 3, 28, 3, -1),
    Sketcher.Constraint("Symmetric", 2, 3, 29, 3, -1),
    Sketcher.Constraint("Symmetric", 1, 3, 30, 3, -1),
    Sketcher.Constraint("Symmetric", 0, 3, 31, 3, -1),
    Sketcher.Constraint("PointOnObject", 32, 3, -1),
    Sketcher.Constraint("PointOnObject", 33, 3, -1),
    Sketcher.Constraint("Horizontal", 0, 3, 1, 3),
    Sketcher.Constraint("Horizontal", 2, 3, 3, 3),
    Sketcher.Constraint("Horizontal", 3, 3, 4, 3),
    Sketcher.Constraint("Horizontal", 1, 3, 5, 3),
    Sketcher.Constraint("Horizontal", 5, 3, 6, 3),
    Sketcher.Constraint("Horizontal", 4, 3, 7, 3),
    Sketcher.Constraint("Horizontal", 7, 3, 8, 3),
    Sketcher.Constraint("Horizontal", 6, 3, 9, 3),
    Sketcher.Constraint("Horizontal", 9, 3, 10, 3),
    Sketcher.Constraint("Horizontal", 8, 3, 11, 3),
    Sketcher.Constraint("Horizontal", 11, 3, 12, 3),
    Sketcher.Constraint("Horizontal", 10, 3, 13, 3),
    Sketcher.Constraint("Horizontal", 13, 3, 14, 3),
    Sketcher.Constraint("Horizontal", 12, 3, 15, 3),
    Sketcher.Constraint("Horizontal", 34, 3, 35, 3),
    Sketcher.Constraint("Horizontal", 36, 3, 37, 3),
    Sketcher.Constraint("Horizontal", 38, 3, 39, 3),
    Sketcher.Constraint("Horizontal", 43, 3, 49, 3),
    Sketcher.Constraint("Horizontal", 45, 3, 63, 3),
    Sketcher.Constraint("Horizontal", 67, 3, 85, 3),
    Sketcher.Constraint("Horizontal", 65, 3, 87, 3),
    Sketcher.Constraint("Vertical", 0, 3, 2, 3),
    Sketcher.Constraint("Vertical", 1, 3, 3, 3),
    Sketcher.Constraint("Vertical", 4, 3, 5, 3),
    Sketcher.Constraint("Vertical", 6, 3, 7, 3),
    Sketcher.Constraint("Vertical", 8, 3, 9, 3),
    Sketcher.Constraint("Vertical", 10, 3, 11, 3),
    Sketcher.Constraint("Vertical", 12, 3, 13, 3),
    Sketcher.Constraint("Vertical", 14, 3, 15, 3),
    Sketcher.Constraint("Vertical", 32, 3, 34, 3),
    Sketcher.Constraint("Vertical", 33, 3, 35, 3),
    Sketcher.Constraint("Vertical", 37, 3, 38, 3),
    Sketcher.Constraint("Vertical", 36, 3, 39, 3),
    Sketcher.Constraint("Vertical", 59, 3, 69, 3),
    Sketcher.Constraint("Vertical", 57, 3, 71, 3),
    Sketcher.Constraint("Vertical", 55, 3, 73, 3),
    Sketcher.Constraint("Vertical", 53, 3, 75, 3),
    Sketcher.Constraint("Vertical", 49, 3, 79, 3),
    Sketcher.Constraint("Vertical", 41, 3, 83, 3),
    Sketcher.Constraint("Equal", 42, 48),
    Sketcher.Constraint("Equal", 82, 44),
    Sketcher.Constraint("Radius", 41, Q("3 mm")),
    Sketcher.Constraint("Diameter", 0, Q("3.5 mm")),
    Sketcher.Constraint("DistanceX", 40, 2, 40, 1, Q("5 mm")),
    Sketcher.Constraint("DistanceX", -1, 1, 0, 3, Q("119 mm")),
    Sketcher.Constraint("DistanceY", -1, 1, 0, 3, Q("10 mm")),
    Sketcher.Constraint("DistanceX", -1, 1, 1, 3, Q("173 mm")),
    Sketcher.Constraint("DistanceY", -1, 1, 2, 3, Q("99 mm")),
    Sketcher.Constraint("DistanceX", -1, 1, 4, 3, Q("99 mm")),
    Sketcher.Constraint("DistanceX", -1, 1, 6, 3, Q("45 mm")),
    Sketcher.Constraint("DistanceX", -1, 1, 8, 3, Q("25 mm")),
    Sketcher.Constraint("DistanceX", 10, 3, -1, 1, Q("29 mm")),
    Sketcher.Constraint("DistanceX", 12, 3, -1, 1, Q("49 mm")),
    Sketcher.Constraint("DistanceX", 14, 3, -1, 1, Q("103 mm")),
    Sketcher.Constraint("DistanceX", 32, 3, -1, 1, Q("198 mm")),
    Sketcher.Constraint("DistanceX", 33, 3, -1, 1, Q("114 mm")),
    Sketcher.Constraint("DistanceY", 34, 3, -1, 1, Q("84 mm")),
    Sketcher.Constraint("DistanceY", -1, 1, 41, 3, Q("124 mm")),
    Sketcher.Constraint("DistanceX", 45, 3, -1, 1, Q("213 mm")),
    Sketcher.Constraint("DistanceY", -1, 1, 36, 3, Q("26.3 mm")),
    Sketcher.Constraint("DistanceX", 37, 3, -1, 1, Q("128.1 mm")),
    Sketcher.Constraint("DistanceX", 41, 3, -1, 1, Q("185.5 mm")),
    Sketcher.Constraint("DistanceY", -1, 1, 45, 3, Q("96.5 mm")),
    Sketcher.Constraint("DistanceX", 49, 3, -1, 1, Q("85.5 mm")),
    Sketcher.Constraint("DistanceX", 36, 3, -1, 1, Q("196.93 mm")),
    Sketcher.Constraint("DistanceY", -1, 1, 38, 3, Q("68.72 mm")),
])
sketch2.setExpression("Constraints[190]", "Params.sketch2_radius")
sketch2.setExpression("Constraints[191]", "Params.sketch2_diameter")
sketch2.setExpression("Constraints[192]", "Params.sketch2_width")
pocket1 = doc.addObject("PartDesign::Pocket", "Pocket")
body.addObject(pocket1)
pocket1.Profile = sketch2
pocket1.Type = "ThroughAll"

doc.recompute()
